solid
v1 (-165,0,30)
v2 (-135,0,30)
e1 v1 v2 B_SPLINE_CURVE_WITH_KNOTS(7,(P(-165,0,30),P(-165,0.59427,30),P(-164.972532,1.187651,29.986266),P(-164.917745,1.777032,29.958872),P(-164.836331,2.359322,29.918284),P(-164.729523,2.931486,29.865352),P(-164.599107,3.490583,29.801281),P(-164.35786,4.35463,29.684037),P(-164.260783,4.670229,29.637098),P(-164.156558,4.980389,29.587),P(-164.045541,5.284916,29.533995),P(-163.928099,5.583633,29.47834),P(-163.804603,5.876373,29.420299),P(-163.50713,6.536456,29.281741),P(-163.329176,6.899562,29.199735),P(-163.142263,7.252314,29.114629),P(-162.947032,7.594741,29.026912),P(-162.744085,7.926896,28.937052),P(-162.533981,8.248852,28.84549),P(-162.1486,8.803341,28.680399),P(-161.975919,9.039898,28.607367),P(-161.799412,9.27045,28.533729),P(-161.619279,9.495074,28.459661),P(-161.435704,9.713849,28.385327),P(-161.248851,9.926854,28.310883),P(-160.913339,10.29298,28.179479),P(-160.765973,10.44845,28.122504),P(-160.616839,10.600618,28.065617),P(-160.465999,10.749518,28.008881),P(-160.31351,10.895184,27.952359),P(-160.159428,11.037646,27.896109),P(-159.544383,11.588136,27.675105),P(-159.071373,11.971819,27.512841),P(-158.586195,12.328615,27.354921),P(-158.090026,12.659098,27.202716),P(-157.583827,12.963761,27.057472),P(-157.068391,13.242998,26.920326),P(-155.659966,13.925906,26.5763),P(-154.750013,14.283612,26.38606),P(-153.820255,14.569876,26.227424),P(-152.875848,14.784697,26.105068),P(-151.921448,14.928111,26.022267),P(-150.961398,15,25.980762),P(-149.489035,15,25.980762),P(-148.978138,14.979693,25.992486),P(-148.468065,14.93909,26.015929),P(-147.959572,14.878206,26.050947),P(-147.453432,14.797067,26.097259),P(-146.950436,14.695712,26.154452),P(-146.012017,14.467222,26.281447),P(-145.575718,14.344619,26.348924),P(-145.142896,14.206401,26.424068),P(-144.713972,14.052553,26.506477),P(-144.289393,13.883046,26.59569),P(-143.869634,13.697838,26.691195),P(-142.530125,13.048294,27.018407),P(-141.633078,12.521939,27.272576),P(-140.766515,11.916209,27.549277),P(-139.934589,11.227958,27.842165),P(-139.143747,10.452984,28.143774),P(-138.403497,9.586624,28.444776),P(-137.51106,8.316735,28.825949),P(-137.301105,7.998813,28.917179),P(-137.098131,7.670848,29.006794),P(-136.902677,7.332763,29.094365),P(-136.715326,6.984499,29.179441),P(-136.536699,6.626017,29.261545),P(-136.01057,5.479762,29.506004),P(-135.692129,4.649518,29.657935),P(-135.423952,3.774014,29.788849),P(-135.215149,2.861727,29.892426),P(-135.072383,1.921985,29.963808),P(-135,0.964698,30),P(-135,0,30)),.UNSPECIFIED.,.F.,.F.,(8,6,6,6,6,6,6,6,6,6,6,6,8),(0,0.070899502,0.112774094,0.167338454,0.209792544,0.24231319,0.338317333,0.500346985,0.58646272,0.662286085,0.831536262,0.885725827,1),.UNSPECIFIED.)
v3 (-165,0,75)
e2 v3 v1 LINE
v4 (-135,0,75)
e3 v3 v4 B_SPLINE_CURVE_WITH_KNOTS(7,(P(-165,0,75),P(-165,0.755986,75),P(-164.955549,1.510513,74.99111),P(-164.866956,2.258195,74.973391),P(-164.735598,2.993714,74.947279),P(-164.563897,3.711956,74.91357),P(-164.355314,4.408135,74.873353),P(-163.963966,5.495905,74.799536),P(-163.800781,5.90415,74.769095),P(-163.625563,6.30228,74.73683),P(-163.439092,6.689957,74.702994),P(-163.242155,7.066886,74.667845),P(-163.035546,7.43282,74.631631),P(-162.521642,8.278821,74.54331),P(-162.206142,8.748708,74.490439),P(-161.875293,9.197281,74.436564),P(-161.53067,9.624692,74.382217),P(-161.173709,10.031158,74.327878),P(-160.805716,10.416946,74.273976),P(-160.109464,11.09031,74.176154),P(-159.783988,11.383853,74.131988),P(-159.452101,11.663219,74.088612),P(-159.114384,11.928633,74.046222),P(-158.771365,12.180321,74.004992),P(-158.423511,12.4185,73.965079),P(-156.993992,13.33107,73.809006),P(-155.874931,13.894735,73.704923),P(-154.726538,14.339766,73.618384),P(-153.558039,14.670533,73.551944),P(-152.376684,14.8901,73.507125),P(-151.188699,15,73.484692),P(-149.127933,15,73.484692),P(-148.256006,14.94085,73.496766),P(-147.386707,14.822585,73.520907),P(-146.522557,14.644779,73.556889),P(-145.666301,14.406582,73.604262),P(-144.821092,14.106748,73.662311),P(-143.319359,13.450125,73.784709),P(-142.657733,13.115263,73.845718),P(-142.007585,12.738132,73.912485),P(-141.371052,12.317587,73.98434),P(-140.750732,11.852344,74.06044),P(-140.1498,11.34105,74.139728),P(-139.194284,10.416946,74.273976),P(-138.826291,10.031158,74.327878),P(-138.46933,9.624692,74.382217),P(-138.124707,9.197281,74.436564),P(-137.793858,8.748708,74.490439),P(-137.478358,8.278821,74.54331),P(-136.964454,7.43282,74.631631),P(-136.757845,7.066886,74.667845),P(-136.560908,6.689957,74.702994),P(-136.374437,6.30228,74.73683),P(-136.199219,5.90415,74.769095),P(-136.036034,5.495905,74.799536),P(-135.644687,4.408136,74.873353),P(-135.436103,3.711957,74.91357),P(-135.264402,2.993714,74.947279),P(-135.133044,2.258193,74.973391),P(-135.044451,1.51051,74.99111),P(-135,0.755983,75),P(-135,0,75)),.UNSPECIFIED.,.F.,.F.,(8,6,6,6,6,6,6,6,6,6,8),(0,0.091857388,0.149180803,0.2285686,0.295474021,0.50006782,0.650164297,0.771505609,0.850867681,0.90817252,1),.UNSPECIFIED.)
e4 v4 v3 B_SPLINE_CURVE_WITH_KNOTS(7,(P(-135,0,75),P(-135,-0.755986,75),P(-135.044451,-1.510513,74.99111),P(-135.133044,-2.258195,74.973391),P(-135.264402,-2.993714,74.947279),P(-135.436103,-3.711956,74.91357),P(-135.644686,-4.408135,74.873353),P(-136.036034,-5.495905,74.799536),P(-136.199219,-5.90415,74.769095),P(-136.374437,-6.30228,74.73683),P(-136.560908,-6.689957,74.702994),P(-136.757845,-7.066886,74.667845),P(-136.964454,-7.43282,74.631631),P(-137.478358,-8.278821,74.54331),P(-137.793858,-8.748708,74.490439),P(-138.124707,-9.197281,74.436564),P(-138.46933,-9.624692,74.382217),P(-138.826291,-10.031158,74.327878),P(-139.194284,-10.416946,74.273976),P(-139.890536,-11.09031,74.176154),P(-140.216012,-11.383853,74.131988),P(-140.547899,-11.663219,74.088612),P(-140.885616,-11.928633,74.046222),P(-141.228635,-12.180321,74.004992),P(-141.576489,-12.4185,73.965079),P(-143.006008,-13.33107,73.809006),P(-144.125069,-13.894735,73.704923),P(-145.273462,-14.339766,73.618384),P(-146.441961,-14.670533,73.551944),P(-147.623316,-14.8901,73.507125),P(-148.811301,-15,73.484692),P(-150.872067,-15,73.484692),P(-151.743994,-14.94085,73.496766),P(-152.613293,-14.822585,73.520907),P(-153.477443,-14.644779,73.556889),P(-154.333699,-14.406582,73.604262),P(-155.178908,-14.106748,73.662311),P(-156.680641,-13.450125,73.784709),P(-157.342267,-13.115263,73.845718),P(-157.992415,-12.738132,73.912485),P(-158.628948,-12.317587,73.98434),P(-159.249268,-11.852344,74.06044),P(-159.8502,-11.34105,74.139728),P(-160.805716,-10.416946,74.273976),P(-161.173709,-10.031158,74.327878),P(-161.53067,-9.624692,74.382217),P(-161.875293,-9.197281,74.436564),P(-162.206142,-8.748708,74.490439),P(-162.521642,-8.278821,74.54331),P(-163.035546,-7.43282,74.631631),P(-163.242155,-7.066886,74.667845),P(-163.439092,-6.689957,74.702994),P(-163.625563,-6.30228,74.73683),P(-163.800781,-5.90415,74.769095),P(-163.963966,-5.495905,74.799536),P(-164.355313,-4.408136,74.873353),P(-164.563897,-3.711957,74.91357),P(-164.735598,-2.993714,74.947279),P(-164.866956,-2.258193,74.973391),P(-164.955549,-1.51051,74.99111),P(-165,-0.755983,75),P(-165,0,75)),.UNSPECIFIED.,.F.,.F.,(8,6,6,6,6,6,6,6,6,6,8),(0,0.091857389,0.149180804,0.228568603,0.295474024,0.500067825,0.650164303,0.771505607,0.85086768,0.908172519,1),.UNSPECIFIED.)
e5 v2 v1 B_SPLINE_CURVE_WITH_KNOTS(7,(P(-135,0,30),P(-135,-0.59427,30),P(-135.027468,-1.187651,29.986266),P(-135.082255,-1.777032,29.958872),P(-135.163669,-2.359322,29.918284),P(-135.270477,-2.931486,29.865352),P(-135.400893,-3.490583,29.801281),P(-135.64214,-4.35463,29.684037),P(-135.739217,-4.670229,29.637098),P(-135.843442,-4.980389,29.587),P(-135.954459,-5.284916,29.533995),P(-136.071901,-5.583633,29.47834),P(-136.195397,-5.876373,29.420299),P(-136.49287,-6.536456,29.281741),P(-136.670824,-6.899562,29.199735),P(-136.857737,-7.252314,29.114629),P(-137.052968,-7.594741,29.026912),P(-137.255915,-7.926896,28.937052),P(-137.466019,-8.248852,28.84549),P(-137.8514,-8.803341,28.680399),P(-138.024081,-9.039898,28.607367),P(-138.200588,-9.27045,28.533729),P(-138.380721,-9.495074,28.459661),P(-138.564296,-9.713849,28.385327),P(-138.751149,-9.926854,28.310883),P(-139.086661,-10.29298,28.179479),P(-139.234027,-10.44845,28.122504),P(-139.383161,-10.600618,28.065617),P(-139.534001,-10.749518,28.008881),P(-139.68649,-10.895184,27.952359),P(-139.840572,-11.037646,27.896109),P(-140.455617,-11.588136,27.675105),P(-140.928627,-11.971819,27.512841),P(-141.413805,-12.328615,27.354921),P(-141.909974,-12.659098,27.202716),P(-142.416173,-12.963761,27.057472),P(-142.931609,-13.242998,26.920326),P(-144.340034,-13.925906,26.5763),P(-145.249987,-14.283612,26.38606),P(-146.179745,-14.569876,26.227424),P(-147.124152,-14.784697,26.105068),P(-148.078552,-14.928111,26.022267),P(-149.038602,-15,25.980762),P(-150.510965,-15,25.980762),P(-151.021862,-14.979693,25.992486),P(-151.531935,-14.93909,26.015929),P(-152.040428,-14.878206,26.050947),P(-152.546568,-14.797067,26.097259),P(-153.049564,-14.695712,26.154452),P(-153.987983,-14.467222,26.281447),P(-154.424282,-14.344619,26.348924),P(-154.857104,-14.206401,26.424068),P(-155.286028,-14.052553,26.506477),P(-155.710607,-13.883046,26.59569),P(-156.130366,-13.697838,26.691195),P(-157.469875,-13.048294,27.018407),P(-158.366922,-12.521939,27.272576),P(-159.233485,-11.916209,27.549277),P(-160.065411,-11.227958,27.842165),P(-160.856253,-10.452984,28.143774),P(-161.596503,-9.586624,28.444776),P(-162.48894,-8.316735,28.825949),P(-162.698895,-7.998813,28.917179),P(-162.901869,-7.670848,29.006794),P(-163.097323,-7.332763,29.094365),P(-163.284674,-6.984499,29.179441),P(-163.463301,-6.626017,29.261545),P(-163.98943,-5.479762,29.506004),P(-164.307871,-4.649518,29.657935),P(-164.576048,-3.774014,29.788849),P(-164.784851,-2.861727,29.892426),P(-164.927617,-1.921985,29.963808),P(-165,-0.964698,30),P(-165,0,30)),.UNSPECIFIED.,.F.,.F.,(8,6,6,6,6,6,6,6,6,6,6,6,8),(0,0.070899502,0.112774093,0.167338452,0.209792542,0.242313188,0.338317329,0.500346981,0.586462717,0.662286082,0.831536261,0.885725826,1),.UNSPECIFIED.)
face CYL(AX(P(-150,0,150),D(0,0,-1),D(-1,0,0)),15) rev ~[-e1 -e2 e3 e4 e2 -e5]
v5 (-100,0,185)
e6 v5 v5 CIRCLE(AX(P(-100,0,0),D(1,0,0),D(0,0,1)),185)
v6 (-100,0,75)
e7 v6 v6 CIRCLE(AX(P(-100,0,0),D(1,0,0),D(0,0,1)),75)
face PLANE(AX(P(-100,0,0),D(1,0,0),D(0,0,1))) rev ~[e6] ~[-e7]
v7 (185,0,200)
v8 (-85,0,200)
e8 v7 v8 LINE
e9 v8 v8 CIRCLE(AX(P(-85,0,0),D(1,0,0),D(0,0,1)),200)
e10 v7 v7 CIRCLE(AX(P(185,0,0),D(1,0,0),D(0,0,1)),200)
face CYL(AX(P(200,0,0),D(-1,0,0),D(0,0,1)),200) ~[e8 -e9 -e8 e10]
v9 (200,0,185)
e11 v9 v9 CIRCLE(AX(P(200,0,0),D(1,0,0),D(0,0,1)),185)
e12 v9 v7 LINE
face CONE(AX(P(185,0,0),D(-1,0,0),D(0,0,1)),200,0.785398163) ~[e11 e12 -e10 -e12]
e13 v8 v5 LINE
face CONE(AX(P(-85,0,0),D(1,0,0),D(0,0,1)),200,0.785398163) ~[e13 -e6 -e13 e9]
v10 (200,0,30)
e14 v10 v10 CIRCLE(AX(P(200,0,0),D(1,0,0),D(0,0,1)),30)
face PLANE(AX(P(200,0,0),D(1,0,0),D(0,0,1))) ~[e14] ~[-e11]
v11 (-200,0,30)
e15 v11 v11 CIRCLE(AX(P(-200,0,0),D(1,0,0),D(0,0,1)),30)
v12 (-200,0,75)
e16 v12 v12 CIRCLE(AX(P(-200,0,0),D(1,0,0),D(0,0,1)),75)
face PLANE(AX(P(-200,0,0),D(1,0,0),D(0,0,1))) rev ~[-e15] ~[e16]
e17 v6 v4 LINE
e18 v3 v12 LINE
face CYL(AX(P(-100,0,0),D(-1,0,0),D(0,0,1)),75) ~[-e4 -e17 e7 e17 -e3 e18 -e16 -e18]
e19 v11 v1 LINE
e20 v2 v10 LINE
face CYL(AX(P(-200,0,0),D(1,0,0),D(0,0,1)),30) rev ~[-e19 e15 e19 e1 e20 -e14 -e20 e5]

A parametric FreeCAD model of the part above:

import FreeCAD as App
import Part
import Sketcher


def edges_at(feature, points):
    """Names of the edges that pass closest to the given points."""
    edges = feature.Shape.Edges
    near = lambda p: min(range(len(edges)), key=lambda i: edges[i].distToShape(Part.Vertex(*p))[0])
    return sorted({f"Edge{near(p) + 1}" for p in points})


def add_polygon(sketch, points):
    """Adds a closed chain of lines whose ends are joined by coincident constraints."""
    first, n = sketch.GeometryCount, len(points)
    for a, b in zip(points, points[1:] + points[:1]):
        sketch.addGeometry(Part.LineSegment(App.Vector(*a, 0), App.Vector(*b, 0)), False)
    for i in range(n):
        sketch.addConstraint(Sketcher.Constraint("Coincident", first + i, 2, first + (i + 1) % n, 1))

doc = App.newDocument("Part")
body = doc.addObject("PartDesign::Body", "Body")

# Sketch on XZ plane
sketch1 = body.newObject("Sketcher::SketchObject", "Sketch")
sketch1.AttachmentSupport = (doc.getObject("XZ_Plane"), [""])
sketch1.MapMode = "FlatFace"
add_polygon(sketch1, [(-200, 30), (200, 30), (200, 200), (-100, 200), (-100, 75), (-200, 75)])  # lines 0-5
sketch1.addConstraint([
    Sketcher.Constraint("Horizontal", 0),
    Sketcher.Constraint("Vertical", 1),
    Sketcher.Constraint("Horizontal", 2),
    Sketcher.Constraint("Vertical", 3),
    Sketcher.Constraint("Horizontal", 4),
    Sketcher.Constraint("Vertical", 5),
    Sketcher.Constraint("DistanceX", 0, 1, 0, 2, 400.0),
    Sketcher.Constraint("DistanceX", 2, 2, 2, 1, 300.0),
    Sketcher.Constraint("DistanceY", 1, 1, 1, 2, 170.0),
    Sketcher.Constraint("DistanceY", 3, 2, 3, 1, 125.0),
    Sketcher.Constraint("DistanceX", -1, 1, 0, 2, 200.0),
    Sketcher.Constraint("DistanceY", -1, 1, 0, 2, 30.0),
])
revolution = body.newObject("PartDesign::Revolution", "Revolution")
revolution.Profile = sketch1
revolution.ReferenceAxis = (sketch1, ["H_Axis"])
revolution.Angle = 360
doc.recompute()

chamfer = body.newObject("PartDesign::Chamfer", "Chamfer")
chamfer.Base = (revolution, edges_at(revolution, [(-100, 0, -200), (200, 0, -200)]))
chamfer.ChamferType = "Two distances"
chamfer.Size = 15
chamfer.Size2 = 15

# Sketch on XY plane
sketch2 = body.newObject("Sketcher::SketchObject", "Sketch001")
sketch2.AttachmentSupport = (doc.getObject("XY_Plane"), [""])
sketch2.MapMode = "FlatFace"
sketch2.AttachmentOffset = App.Placement(App.Vector(0, 0, 75), App.Rotation())
sketch2.addGeometry(Part.Circle(App.Vector(-150, 0, 0), App.Vector(0, 0, 1), 15), False)
sketch2.addConstraint([
    Sketcher.Constraint("PointOnObject", 0, 3, -1),
    Sketcher.Constraint("Diameter", 0, 30.0),
    Sketcher.Constraint("DistanceX", 0, 3, -1, 1, 150.0),
])
doc.recompute()
hole = body.newObject("PartDesign::Hole", "Hole")
hole.Profile = sketch2
hole.ThreadType = "None"
hole.Diameter = 30
hole.DepthType = "Dimension"
hole.Depth = 75
hole.DrillPoint = "Flat"

doc.recompute()
